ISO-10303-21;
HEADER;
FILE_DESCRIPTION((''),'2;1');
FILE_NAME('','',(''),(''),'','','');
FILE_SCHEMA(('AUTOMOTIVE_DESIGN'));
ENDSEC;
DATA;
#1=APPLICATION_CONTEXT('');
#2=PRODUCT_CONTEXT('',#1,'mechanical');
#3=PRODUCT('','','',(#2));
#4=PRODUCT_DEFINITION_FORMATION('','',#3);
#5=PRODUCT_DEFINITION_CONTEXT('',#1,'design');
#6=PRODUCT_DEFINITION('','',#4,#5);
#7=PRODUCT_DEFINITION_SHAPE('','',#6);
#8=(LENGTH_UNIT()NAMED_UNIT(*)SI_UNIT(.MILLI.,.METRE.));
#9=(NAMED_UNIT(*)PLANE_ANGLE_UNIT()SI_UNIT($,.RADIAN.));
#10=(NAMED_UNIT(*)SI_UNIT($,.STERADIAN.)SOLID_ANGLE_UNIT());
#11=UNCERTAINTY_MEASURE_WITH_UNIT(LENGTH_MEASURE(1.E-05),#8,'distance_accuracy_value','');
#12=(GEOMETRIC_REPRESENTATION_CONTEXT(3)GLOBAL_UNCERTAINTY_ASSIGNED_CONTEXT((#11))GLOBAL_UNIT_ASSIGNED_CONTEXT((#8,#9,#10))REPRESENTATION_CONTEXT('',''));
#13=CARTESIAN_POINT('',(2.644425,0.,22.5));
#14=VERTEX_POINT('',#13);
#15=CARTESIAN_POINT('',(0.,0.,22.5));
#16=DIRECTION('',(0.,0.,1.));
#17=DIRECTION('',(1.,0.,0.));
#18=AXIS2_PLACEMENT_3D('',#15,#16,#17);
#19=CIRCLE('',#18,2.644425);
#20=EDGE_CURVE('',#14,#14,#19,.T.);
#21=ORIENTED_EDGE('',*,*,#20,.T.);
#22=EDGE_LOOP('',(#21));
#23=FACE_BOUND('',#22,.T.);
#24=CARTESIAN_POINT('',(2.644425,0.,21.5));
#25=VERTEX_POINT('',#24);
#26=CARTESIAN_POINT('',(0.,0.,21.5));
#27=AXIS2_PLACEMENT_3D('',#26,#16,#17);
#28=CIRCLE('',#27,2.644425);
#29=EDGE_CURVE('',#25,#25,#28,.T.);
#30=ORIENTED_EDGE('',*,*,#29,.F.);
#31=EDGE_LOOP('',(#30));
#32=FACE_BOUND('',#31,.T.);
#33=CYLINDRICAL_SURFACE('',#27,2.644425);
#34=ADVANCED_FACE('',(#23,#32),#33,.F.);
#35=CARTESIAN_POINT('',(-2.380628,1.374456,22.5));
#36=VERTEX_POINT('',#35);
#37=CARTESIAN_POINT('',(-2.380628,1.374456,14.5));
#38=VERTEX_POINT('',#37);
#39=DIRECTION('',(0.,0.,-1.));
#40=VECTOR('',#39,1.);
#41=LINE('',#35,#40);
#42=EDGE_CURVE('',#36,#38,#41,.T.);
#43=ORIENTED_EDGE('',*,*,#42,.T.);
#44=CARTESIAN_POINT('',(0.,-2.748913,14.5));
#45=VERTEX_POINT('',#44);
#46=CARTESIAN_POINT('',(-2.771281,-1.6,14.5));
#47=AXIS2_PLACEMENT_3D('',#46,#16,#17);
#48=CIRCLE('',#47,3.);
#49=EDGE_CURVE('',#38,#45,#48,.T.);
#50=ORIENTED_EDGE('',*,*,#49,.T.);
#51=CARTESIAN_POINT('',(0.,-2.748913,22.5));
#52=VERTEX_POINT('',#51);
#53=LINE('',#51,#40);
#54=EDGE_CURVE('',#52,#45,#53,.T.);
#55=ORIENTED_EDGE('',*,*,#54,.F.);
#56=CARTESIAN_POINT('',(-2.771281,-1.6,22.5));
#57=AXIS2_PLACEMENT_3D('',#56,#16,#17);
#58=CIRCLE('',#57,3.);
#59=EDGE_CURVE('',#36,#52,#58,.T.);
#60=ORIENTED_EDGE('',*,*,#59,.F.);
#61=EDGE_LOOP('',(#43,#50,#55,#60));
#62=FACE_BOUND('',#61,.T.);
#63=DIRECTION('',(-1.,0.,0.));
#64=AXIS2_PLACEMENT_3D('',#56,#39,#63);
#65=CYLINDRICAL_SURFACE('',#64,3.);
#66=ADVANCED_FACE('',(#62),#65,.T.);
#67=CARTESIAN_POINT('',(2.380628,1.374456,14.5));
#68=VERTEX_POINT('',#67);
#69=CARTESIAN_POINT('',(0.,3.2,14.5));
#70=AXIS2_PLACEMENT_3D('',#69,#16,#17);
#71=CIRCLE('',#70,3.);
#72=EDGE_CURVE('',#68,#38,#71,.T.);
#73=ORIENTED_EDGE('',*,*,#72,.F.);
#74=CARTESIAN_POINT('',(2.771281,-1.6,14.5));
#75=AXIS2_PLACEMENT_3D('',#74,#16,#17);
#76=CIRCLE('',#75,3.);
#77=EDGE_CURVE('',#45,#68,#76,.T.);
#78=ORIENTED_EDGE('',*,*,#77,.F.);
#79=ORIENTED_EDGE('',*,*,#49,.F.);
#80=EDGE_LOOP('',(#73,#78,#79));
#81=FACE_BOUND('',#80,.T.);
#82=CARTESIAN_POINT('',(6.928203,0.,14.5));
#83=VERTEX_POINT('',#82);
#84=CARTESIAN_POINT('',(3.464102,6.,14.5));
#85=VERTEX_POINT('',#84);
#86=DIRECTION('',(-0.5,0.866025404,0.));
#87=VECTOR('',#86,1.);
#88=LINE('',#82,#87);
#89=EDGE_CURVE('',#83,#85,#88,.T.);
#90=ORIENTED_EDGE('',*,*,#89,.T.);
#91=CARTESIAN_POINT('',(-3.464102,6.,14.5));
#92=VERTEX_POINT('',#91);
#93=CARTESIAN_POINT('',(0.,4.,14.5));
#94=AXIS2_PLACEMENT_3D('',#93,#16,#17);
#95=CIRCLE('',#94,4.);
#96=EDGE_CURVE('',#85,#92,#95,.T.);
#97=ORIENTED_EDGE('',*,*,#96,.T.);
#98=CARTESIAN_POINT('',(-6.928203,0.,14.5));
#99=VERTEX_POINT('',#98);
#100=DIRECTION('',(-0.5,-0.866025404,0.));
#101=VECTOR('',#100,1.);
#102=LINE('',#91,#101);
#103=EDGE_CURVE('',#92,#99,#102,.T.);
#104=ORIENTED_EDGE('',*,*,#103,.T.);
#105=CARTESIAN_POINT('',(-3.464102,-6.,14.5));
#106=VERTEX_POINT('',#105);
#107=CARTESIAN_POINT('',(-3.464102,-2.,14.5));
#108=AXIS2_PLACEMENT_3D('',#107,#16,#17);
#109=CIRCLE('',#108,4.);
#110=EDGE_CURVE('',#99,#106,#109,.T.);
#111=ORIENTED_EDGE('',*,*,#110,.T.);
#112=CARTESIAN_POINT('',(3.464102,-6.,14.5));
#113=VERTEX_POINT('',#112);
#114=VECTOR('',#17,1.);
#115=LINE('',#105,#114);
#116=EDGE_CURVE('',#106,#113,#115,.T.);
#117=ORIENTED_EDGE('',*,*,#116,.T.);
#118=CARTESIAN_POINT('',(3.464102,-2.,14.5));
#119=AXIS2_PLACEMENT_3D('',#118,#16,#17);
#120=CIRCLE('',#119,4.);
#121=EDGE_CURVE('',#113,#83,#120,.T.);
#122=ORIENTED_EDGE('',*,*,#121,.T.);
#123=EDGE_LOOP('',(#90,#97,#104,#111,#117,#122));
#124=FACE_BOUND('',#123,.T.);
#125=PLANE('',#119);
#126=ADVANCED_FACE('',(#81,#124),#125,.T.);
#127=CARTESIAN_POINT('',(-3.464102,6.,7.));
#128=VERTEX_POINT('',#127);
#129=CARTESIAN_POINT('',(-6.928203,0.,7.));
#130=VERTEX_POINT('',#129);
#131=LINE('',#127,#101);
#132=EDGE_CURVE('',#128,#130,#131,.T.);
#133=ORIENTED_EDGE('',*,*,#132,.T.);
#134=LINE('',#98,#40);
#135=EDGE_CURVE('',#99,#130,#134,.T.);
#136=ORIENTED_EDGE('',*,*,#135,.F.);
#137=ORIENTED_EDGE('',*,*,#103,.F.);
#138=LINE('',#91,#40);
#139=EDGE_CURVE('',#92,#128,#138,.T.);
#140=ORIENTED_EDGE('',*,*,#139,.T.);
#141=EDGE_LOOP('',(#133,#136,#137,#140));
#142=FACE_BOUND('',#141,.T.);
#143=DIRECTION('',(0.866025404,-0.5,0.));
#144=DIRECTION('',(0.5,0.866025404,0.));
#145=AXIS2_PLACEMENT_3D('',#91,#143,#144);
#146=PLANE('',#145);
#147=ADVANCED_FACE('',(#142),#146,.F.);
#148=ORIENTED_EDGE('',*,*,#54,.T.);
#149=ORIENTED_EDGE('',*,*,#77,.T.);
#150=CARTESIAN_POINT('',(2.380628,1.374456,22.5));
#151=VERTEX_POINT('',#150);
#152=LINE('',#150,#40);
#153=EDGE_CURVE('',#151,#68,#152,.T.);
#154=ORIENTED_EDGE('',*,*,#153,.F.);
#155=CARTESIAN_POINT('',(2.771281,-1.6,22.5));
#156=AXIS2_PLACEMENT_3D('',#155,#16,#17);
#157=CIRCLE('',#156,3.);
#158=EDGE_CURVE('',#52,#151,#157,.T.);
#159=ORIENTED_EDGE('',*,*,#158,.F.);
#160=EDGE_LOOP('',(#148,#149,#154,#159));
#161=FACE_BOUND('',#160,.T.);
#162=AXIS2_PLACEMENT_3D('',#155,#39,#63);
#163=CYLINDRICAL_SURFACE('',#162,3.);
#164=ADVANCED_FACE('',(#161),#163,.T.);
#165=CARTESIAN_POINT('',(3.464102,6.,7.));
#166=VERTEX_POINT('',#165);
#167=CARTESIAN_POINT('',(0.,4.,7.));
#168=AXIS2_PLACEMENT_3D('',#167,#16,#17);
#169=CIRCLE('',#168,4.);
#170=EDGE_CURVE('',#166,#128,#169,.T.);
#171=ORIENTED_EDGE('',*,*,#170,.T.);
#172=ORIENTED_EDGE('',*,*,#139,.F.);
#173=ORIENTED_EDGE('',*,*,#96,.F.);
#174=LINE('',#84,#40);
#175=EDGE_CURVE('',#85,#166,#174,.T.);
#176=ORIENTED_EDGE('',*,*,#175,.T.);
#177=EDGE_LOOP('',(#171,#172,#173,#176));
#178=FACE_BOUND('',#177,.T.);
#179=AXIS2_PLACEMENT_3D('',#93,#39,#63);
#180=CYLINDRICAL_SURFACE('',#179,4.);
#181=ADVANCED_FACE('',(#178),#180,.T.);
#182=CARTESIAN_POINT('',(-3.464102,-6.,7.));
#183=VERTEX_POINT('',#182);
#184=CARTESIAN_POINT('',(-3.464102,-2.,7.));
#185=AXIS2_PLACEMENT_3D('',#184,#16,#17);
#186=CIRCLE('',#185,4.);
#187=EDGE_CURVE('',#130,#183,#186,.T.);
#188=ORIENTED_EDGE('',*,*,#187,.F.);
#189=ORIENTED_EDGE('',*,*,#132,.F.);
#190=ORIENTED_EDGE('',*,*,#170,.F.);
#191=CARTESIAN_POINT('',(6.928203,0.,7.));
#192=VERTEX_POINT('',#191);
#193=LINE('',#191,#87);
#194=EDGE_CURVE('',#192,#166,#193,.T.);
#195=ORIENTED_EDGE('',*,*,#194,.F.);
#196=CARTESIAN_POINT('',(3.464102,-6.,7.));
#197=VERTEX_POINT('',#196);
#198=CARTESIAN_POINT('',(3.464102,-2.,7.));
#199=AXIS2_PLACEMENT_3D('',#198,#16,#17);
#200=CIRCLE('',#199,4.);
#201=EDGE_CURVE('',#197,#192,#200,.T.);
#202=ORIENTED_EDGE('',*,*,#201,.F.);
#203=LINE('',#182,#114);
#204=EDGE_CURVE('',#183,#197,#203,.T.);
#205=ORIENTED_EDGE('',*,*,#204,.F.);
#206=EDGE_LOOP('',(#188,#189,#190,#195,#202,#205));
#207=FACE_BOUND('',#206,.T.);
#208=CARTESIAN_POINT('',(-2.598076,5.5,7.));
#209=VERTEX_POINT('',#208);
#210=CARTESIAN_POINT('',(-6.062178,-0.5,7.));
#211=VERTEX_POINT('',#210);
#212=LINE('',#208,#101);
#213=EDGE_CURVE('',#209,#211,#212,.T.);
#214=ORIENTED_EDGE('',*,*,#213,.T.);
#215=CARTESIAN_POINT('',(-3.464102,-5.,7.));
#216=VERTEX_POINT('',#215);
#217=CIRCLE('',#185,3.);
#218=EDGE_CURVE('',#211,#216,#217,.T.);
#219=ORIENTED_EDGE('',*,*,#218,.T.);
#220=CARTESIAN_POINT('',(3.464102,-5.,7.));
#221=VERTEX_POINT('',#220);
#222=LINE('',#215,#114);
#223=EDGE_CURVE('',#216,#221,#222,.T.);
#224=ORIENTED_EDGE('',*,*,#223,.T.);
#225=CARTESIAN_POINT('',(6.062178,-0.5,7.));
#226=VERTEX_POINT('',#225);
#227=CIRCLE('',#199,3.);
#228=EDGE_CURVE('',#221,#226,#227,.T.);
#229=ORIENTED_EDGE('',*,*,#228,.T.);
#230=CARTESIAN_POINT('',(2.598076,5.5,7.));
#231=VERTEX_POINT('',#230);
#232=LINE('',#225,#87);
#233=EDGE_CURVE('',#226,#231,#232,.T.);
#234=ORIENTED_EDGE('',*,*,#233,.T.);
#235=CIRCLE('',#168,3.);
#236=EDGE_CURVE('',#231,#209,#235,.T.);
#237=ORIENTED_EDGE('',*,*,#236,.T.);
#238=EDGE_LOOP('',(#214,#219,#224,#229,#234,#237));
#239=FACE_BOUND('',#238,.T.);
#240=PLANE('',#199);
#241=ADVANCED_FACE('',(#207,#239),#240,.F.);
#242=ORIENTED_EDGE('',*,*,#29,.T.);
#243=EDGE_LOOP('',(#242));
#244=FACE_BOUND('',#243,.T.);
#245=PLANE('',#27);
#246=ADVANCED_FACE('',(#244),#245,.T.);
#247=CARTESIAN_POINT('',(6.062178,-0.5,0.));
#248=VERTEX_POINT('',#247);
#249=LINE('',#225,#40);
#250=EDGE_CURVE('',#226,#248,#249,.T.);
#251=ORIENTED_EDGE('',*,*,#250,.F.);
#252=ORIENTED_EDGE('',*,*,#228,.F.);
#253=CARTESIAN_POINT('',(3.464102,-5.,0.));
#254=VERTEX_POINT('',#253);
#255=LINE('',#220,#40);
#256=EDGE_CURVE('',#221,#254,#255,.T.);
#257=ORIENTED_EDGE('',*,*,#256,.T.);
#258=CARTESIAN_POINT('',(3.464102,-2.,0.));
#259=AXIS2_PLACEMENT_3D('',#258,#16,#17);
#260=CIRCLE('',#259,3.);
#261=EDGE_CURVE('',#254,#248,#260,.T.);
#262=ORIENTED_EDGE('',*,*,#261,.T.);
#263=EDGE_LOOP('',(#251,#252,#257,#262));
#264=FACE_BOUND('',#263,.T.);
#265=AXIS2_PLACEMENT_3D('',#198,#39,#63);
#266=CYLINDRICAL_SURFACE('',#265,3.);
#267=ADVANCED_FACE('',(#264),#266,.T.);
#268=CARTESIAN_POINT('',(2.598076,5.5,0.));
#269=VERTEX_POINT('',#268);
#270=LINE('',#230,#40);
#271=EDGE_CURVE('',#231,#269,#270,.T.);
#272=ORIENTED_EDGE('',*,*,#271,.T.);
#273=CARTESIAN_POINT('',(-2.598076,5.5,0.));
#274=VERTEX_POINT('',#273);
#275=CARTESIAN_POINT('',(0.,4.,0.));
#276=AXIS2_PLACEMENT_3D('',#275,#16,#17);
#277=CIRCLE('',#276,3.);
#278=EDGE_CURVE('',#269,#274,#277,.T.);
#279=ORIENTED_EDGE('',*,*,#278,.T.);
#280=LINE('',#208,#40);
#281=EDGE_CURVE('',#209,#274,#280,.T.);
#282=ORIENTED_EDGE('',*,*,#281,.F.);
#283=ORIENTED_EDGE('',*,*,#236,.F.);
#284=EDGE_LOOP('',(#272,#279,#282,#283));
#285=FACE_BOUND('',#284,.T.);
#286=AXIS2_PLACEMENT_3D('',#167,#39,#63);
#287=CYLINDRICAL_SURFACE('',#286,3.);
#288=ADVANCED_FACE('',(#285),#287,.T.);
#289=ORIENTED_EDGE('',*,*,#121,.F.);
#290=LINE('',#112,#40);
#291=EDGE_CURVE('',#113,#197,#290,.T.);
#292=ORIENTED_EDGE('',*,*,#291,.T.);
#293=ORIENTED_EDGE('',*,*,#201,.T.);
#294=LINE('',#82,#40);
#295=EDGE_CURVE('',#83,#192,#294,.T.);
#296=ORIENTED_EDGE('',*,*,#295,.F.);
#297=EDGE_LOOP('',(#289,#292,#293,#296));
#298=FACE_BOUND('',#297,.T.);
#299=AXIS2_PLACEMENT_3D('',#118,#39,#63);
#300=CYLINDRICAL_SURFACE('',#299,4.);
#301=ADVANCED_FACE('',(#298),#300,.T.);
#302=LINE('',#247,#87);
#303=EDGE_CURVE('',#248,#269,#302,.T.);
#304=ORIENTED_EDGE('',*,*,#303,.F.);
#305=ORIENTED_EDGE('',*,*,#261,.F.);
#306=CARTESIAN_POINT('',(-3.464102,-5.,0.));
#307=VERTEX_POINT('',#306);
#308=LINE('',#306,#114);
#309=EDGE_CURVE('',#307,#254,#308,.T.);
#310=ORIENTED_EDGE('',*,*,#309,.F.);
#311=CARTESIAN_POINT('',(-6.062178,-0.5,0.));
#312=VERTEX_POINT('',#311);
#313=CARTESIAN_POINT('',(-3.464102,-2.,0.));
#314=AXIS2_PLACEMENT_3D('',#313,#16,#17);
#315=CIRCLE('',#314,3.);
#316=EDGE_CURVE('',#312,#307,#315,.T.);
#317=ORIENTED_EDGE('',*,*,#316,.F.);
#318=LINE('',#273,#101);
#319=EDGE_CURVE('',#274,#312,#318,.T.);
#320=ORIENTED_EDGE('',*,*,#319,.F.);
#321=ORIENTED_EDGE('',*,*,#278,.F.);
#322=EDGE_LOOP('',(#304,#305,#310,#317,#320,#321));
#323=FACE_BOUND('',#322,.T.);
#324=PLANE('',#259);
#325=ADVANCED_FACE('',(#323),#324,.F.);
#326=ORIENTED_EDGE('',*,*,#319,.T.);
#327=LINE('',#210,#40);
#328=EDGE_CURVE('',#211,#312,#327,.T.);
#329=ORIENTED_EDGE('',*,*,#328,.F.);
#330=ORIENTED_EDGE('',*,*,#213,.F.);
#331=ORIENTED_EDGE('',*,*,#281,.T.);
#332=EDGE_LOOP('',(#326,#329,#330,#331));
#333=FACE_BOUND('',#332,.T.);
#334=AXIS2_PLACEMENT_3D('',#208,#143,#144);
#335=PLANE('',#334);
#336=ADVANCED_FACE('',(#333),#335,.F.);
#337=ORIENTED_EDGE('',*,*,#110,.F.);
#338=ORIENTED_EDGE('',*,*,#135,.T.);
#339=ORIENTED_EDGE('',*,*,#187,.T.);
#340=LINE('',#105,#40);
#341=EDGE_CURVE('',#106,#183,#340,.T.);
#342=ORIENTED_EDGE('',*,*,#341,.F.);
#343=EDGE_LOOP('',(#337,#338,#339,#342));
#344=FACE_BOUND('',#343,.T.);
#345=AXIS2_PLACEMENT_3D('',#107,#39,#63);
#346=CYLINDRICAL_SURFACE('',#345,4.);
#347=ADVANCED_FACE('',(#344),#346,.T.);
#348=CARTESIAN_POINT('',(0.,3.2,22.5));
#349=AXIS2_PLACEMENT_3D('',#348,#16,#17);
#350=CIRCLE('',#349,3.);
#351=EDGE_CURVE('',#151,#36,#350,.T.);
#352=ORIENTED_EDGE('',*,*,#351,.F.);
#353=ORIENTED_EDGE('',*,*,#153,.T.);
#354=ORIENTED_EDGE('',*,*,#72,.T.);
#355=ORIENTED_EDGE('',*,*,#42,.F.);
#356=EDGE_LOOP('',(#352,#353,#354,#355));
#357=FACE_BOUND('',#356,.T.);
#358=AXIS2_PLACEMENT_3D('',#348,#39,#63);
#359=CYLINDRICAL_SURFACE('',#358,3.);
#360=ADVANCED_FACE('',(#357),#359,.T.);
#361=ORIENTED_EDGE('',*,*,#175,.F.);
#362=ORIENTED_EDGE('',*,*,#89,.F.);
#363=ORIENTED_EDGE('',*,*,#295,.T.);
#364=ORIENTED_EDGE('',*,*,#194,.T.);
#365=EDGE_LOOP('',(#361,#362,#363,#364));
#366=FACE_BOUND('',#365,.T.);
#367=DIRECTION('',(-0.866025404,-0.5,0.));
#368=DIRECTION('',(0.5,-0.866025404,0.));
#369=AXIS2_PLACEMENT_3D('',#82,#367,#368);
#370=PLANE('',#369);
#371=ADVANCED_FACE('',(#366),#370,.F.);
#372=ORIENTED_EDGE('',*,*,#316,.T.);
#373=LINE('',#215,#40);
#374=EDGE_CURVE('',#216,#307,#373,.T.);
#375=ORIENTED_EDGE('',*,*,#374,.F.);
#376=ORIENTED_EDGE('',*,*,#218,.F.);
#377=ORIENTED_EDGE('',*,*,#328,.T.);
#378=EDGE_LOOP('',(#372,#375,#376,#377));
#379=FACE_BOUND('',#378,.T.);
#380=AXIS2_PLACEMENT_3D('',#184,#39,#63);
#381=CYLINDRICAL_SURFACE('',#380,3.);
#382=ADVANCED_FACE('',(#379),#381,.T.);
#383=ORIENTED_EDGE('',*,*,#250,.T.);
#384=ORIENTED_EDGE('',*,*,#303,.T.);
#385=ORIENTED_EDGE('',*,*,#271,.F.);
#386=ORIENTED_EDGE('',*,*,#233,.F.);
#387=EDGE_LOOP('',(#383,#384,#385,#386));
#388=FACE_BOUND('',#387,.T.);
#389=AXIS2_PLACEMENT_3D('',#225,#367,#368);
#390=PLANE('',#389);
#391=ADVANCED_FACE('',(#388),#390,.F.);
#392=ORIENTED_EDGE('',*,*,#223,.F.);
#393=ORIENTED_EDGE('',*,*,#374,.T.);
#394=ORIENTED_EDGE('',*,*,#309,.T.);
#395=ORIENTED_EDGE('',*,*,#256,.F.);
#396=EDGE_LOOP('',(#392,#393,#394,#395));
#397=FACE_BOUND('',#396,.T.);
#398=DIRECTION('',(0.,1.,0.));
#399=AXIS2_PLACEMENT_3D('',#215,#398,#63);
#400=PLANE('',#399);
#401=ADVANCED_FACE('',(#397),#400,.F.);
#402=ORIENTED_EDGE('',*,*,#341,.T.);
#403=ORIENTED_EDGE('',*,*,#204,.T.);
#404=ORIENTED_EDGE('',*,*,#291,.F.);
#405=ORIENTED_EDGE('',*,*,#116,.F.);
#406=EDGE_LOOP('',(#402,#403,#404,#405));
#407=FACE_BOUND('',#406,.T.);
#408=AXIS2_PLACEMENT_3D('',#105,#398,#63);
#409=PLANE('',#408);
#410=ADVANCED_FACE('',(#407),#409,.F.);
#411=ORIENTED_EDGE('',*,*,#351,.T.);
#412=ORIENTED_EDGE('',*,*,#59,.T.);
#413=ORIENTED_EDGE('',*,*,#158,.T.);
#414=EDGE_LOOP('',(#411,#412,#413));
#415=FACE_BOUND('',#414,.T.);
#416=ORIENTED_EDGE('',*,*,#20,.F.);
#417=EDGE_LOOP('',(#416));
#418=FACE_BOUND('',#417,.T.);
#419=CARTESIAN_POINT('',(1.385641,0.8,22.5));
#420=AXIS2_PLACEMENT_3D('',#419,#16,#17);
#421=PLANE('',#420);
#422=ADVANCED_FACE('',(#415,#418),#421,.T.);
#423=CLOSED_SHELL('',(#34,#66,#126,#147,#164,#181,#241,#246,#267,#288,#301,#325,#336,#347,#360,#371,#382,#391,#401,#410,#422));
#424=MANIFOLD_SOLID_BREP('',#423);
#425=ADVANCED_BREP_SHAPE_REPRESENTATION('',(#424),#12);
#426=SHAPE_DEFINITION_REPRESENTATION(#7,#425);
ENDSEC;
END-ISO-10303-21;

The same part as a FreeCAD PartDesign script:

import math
import FreeCAD as App
import Part
import Sketcher
from FreeCAD import Vector
Q = App.Units.Quantity

doc = App.newDocument("Part")
params = doc.addObject("Spreadsheet::Sheet", "Params")
for row, (alias, value) in enumerate([
    ("sketch1_radius", "3 mm"),
    ("pad1_length", "7 mm"),
    ("sketch2_radius", "4 mm"),
    ("pad2_length", "7.5 mm"),
    ("sketch3_radius", "3 mm"),
    ("pad3_length", "8 mm"),
    ("pocket1_length", "1 mm"),
], start=1):
    params.set(f"A{row}", alias)
    params.set(f"B{row}", "=" + value)
    params.setAlias(f"B{row}", alias)

body = doc.addObject("PartDesign::Body", "Body")

# Sketch on XY plane
sketch1 = body.newObject("Sketcher::SketchObject", "Sketch")
sketch1.AttachmentSupport = (doc.getObject("XY_Plane"), [""])
sketch1.MapMode = "FlatFace"
sketch1.addGeometry([
    Part.LineSegment(Vector(-2.598076, 5.5, 0), Vector(-6.062178, -0.5, 0)),  # 0
    Part.ArcOfCircle(Part.Circle(Vector(-3.464102, -2, 0), Vector(0, 0, 1), 3), math.radians(150), math.radians(270)),  # 1
    Part.LineSegment(Vector(-3.464102, -5, 0), Vector(3.464102, -5, 0)),  # 2
    Part.ArcOfCircle(Part.Circle(Vector(3.464102, -2, 0), Vector(0, 0, 1), 3), math.radians(-90), math.radians(30)),  # 3
    Part.LineSegment(Vector(6.062178, -0.5, 0), Vector(2.598076, 5.5, 0)),  # 4
    Part.ArcOfCircle(Part.Circle(Vector(0, 4, 0), Vector(0, 0, 1), 3), math.radians(30), math.radians(150)),  # 5
], False)
sketch1.addConstraint([
    Sketcher.Constraint("Tangent", 0, 2, 1, 1),
    Sketcher.Constraint("Tangent", 1, 2, 2, 1),
    Sketcher.Constraint("Tangent", 2, 2, 3, 1),
    Sketcher.Constraint("Tangent", 3, 2, 4, 1),
    Sketcher.Constraint("Tangent", 4, 2, 5, 1),
    Sketcher.Constraint("Tangent", 5, 2, 0, 1),
    Sketcher.Constraint("Horizontal", 2),
    Sketcher.Constraint("Equal", 1, 3),
    Sketcher.Constraint("Equal", 3, 5),
    Sketcher.Constraint("Symmetric", 0, 2, 3, 2, -2),
    Sketcher.Constraint("Radius", 1, 3.0),
    Sketcher.Constraint("Angle", 0, Q("-120 deg")),
    Sketcher.Constraint("DistanceY", 1, 3, -1, 1, 2.0),
    Sketcher.Constraint("DistanceY", -1, 1, 5, 3, 4.0),
])
sketch1.setExpression("Constraints[10]", "Params.sketch1_radius")
pad1 = body.newObject("PartDesign::Pad", "Pad")
pad1.Profile = sketch1
pad1.setExpression("Length", "Params.pad1_length")

# Sketch on XY plane
sketch2 = body.newObject("Sketcher::SketchObject", "Sketch001")
sketch2.AttachmentSupport = (doc.getObject("XY_Plane"), [""])
sketch2.MapMode = "FlatFace"
sketch2.AttachmentOffset = App.Placement(Vector(0, 0, 7), App.Rotation())
sketch2.addGeometry([
    Part.LineSegment(Vector(6.928203, 0, 0), Vector(3.464102, 6, 0)),  # 0
    Part.ArcOfCircle(Part.Circle(Vector(0, 4, 0), Vector(0, 0, 1), 4), math.radians(30), math.radians(150)),  # 1
    Part.LineSegment(Vector(-3.464102, 6, 0), Vector(-6.928203, 0, 0)),  # 2
    Part.ArcOfCircle(Part.Circle(Vector(-3.464102, -2, 0), Vector(0, 0, 1), 4), math.radians(150), math.radians(270)),  # 3
    Part.LineSegment(Vector(-3.464102, -6, 0), Vector(3.464102, -6, 0)),  # 4
    Part.ArcOfCircle(Part.Circle(Vector(3.464102, -2, 0), Vector(0, 0, 1), 4), math.radians(-90), math.radians(30)),  # 5
], False)
sketch2.addConstraint([
    Sketcher.Constraint("Tangent", 0, 2, 1, 1),
    Sketcher.Constraint("Tangent", 1, 2, 2, 1),
    Sketcher.Constraint("Tangent", 2, 2, 3, 1),
    Sketcher.Constraint("Tangent", 3, 2, 4, 1),
    Sketcher.Constraint("Tangent", 4, 2, 5, 1),
    Sketcher.Constraint("Tangent", 5, 2, 0, 1),
    Sketcher.Constraint("Horizontal", 4),
    Sketcher.Constraint("Equal", 1, 3),
    Sketcher.Constraint("Equal", 3, 5),
    Sketcher.Constraint("Symmetric", 0, 2, 3, 2, -1, 1),
    Sketcher.Constraint("Symmetric", 1, 2, 4, 2, -1, 1),
    Sketcher.Constraint("PointOnObject", 2, 2, -1),
    Sketcher.Constraint("Radius", 1, 4.0),
])
sketch2.setExpression("Constraints[12]", "Params.sketch2_radius")
pad2 = body.newObject("PartDesign::Pad", "Pad001")
pad2.Profile = sketch2
pad2.setExpression("Length", "Params.pad2_length")

# Sketch on XY plane
sketch3 = body.newObject("Sketcher::SketchObject", "Sketch002")
sketch3.AttachmentSupport = (doc.getObject("XY_Plane"), [""])
sketch3.MapMode = "FlatFace"
sketch3.AttachmentOffset = App.Placement(Vector(0, 0, 14.5), App.Rotation())
sketch3.addGeometry([
    Part.ArcOfCircle(Part.Circle(Vector(-2.771281, -1.6, 0), Vector(0, 0, 1), 3), math.radians(82.517825), math.radians(337.482175)),
    Part.ArcOfCircle(Part.Circle(Vector(2.771281, -1.6, 0), Vector(0, 0, 1), 3), math.radians(-157.482175), math.radians(97.482175)),
    Part.ArcOfCircle(Part.Circle(Vector(0, 3.2, 0), Vector(0, 0, 1), 3), math.radians(-37.482175), math.radians(217.482175)),
], False)
sketch3.addConstraint([
    Sketcher.Constraint("Coincident", 0, 2, 1, 1),
    Sketcher.Constraint("Coincident", 1, 2, 2, 1),
    Sketcher.Constraint("Coincident", 2, 2, 0, 1),
    Sketcher.Constraint("Equal", 0, 1),
    Sketcher.Constraint("Equal", 1, 2),
    Sketcher.Constraint("Symmetric", 0, 3, 1, 3, -2),
    Sketcher.Constraint("PointOnObject", 2, 3, -2),
    Sketcher.Constraint("Radius", 0, 3.0),
    Sketcher.Constraint("DistanceY", 0, 3, -1, 1, 1.6),
    Sketcher.Constraint("DistanceY", -1, 1, 2, 3, 3.2),
    Sketcher.Constraint("DistanceX", 0, 3, -1, 1, 2.771281),
])
sketch3.setExpression("Constraints[7]", "Params.sketch3_radius")
pad3 = body.newObject("PartDesign::Pad", "Pad002")
pad3.Profile = sketch3
pad3.setExpression("Length", "Params.pad3_length")

# Sketch on XY plane
sketch4 = body.newObject("Sketcher::SketchObject", "Sketch003")
sketch4.AttachmentSupport = (doc.getObject("XY_Plane"), [""])
sketch4.MapMode = "FlatFace"
sketch4.AttachmentOffset = App.Placement(Vector(0, 0, 22.5), App.Rotation())
sketch4.addGeometry(Part.Circle(Vector(0, 0, 0), Vector(0, 0, 1), 2.644425), False)
sketch4.addConstraint([
    Sketcher.Constraint("Coincident", 0, 3, -1, 1),
    Sketcher.Constraint("Diameter", 0, 5.288849),
])
pocket1 = body.newObject("PartDesign::Pocket", "Pocket")
pocket1.Profile = sketch4
pocket1.setExpression("Length", "Params.pocket1_length")

doc.recompute()
